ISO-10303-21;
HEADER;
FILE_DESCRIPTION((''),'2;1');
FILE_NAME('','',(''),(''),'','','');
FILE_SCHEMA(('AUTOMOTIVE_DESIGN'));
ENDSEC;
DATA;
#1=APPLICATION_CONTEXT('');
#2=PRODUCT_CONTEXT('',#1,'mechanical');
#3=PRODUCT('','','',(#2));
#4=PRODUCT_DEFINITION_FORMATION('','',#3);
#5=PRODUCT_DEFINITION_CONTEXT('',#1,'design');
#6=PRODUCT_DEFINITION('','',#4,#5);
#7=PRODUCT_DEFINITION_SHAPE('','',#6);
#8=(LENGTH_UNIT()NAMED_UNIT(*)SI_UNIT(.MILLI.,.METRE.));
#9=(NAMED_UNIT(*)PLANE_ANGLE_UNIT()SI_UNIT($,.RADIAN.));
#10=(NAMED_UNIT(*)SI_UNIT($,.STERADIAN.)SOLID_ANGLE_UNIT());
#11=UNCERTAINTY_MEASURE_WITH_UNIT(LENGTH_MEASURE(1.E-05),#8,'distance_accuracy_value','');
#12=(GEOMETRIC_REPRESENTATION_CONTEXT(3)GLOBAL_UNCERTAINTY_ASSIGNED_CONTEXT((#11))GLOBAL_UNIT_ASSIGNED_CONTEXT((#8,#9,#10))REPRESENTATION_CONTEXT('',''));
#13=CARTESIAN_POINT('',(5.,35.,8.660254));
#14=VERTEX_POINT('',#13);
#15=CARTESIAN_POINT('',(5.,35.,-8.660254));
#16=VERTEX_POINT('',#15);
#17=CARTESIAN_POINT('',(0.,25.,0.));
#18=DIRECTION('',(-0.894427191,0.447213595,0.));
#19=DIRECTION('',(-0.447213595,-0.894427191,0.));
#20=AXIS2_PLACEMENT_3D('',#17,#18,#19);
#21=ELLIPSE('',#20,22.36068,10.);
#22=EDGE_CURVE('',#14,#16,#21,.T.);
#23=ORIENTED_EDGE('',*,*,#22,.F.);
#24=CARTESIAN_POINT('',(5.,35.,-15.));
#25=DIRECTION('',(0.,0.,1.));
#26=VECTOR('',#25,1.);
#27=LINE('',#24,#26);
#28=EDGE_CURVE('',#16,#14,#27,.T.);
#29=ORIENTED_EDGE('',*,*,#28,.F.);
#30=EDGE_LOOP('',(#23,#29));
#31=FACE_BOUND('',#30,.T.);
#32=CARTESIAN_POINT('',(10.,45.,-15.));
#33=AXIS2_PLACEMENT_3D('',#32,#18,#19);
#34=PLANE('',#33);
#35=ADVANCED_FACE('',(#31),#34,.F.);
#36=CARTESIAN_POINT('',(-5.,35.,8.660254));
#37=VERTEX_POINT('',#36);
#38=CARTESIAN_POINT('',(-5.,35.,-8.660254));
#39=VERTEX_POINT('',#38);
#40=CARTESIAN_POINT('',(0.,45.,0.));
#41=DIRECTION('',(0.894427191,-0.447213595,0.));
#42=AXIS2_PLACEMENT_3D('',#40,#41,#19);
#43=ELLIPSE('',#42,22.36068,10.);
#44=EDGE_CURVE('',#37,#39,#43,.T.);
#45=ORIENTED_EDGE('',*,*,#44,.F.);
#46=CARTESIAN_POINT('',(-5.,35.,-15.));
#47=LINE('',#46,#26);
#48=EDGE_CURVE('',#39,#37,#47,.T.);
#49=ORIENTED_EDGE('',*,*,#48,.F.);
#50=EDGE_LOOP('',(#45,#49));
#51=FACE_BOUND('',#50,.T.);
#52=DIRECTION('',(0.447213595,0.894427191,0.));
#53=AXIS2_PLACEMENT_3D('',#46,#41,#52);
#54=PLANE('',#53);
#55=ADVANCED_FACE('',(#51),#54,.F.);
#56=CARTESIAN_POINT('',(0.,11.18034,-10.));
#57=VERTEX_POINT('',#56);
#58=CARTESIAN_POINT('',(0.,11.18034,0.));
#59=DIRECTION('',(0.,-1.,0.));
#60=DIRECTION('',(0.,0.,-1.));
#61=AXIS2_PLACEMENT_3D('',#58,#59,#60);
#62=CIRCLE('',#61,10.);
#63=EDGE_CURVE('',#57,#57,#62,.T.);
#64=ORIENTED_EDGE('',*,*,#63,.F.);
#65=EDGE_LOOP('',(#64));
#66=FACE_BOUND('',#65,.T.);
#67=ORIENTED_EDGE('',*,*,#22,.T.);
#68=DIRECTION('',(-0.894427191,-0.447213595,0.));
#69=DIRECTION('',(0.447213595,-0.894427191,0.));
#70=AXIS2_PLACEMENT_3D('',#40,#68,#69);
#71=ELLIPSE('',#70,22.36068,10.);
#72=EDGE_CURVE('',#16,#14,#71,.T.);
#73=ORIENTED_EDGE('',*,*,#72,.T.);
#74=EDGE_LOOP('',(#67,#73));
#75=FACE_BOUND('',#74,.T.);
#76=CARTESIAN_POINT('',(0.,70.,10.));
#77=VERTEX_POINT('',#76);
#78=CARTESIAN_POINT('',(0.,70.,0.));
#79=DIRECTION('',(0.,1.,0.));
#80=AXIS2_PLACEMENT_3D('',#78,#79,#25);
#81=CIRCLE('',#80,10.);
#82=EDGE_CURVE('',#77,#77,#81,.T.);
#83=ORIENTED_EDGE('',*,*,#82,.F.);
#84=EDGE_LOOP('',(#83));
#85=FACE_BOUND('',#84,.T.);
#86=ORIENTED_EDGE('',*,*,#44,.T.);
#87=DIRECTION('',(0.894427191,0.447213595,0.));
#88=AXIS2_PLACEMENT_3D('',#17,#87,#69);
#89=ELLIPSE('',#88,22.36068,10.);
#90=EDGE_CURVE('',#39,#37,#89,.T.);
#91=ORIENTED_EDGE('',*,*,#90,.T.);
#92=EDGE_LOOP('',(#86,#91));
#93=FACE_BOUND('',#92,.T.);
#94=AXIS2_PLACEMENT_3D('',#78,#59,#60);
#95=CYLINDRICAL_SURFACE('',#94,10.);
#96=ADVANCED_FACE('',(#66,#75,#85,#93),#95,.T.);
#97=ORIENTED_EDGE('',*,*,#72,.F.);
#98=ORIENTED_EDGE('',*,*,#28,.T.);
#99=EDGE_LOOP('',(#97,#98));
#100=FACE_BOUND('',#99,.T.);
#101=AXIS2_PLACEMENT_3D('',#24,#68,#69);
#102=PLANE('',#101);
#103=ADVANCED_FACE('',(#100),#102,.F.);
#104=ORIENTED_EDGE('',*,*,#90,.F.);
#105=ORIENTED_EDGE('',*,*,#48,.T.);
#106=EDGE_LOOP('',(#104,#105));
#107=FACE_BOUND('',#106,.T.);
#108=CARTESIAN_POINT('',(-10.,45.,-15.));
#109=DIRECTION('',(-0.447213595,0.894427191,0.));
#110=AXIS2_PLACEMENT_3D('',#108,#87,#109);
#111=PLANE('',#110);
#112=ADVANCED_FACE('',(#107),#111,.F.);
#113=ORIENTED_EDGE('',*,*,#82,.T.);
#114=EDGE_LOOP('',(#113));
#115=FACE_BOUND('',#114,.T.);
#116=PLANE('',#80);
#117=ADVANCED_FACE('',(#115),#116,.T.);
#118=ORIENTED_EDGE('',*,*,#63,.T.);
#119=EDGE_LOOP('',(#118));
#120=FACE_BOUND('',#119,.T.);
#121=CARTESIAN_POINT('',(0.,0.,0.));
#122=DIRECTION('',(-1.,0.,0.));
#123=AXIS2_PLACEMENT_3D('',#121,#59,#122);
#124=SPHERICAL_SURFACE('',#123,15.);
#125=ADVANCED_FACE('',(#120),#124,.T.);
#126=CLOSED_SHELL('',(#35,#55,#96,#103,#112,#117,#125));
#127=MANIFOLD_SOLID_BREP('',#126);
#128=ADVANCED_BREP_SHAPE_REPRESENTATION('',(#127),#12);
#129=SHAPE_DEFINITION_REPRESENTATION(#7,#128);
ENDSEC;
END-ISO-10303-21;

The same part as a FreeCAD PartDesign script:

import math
import FreeCAD as App
import Part
import Sketcher

V = App.Vector

doc = App.newDocument("Part")
body = doc.addObject("PartDesign::Body", "Body")

# Sketch on XY plane
sketch1 = body.newObject("Sketcher::SketchObject", "Sketch")
sketch1.AttachmentSupport = (doc.getObject("XY_Plane"), [""])
sketch1.MapMode = "FlatFace"
sketch1.addGeometry(Part.LineSegment(V(0, 15, 0), V(0, -15, 0)), False)
sketch1.addGeometry(Part.ArcOfCircle(Part.Circle(V(0, 0, 0), V(0, 0, 1), 15), math.radians(-90), math.radians(90)), False)
sketch1.addConstraint(Sketcher.Constraint("Coincident", 0, 1, 1, 2))
sketch1.addConstraint(Sketcher.Constraint("Coincident", 1, 1, 0, 2))
sketch1.addConstraint(Sketcher.Constraint("Vertical", 0))
sketch1.addConstraint(Sketcher.Constraint("Coincident", 1, 3, -1, 1))
sketch1.addConstraint(Sketcher.Constraint("PointOnObject", 0, 1, -2))
sketch1.addConstraint(Sketcher.Constraint("Radius", 1, 15.0))
revolution = body.newObject("PartDesign::Revolution", "Revolution")
revolution.Profile = sketch1
revolution.ReferenceAxis = (sketch1, ["V_Axis"])
revolution.Angle = 360

# Sketch on XZ plane
sketch2 = body.newObject("Sketcher::SketchObject", "Sketch001")
sketch2.AttachmentSupport = (doc.getObject("XZ_Plane"), [""])
sketch2.MapMode = "FlatFace"
sketch2.addGeometry(Part.Circle(V(0, 0, 0), V(0, 0, 1), 10), False)
sketch2.addConstraint(Sketcher.Constraint("Coincident", 0, 3, -1, 1))
sketch2.addConstraint(Sketcher.Constraint("Diameter", 0, 20.0))
pad1 = body.newObject("PartDesign::Pad", "Pad")
pad1.Profile = sketch2
pad1.Length = 70
pad1.Reversed = True

# Sketch on XY plane
sketch3 = body.newObject("Sketcher::SketchObject", "Sketch002")
sketch3.AttachmentSupport = (doc.getObject("XY_Plane"), [""])
sketch3.MapMode = "FlatFace"
sketch3.addGeometry(Part.LineSegment(V(10, 45, 0), V(5, 35, 0)), False)
sketch3.addGeometry(Part.LineSegment(V(5, 35, 0), V(10, 25, 0)), False)
sketch3.addGeometry(Part.LineSegment(V(10, 25, 0), V(10, 45, 0)), False)
sketch3.addGeometry(Part.LineSegment(V(-10, 45, 0), V(-10, 25, 0)), False)
sketch3.addGeometry(Part.LineSegment(V(-10, 25, 0), V(-5, 35, 0)), False)
sketch3.addGeometry(Part.LineSegment(V(-5, 35, 0), V(-10, 45, 0)), False)
sketch3.addConstraint(Sketcher.Constraint("Coincident", 0, 2, 1, 1))
sketch3.addConstraint(Sketcher.Constraint("Coincident", 1, 2, 2, 1))
sketch3.addConstraint(Sketcher.Constraint("Coincident", 2, 2, 0, 1))
sketch3.addConstraint(Sketcher.Constraint("Coincident", 3, 2, 4, 1))
sketch3.addConstraint(Sketcher.Constraint("Coincident", 4, 2, 5, 1))
sketch3.addConstraint(Sketcher.Constraint("Coincident", 5, 2, 3, 1))
sketch3.addConstraint(Sketcher.Constraint("Vertical", 2))
sketch3.addConstraint(Sketcher.Constraint("Vertical", 3))
sketch3.addConstraint(Sketcher.Constraint("Symmetric", 1, 2, 3, 2, -2))
sketch3.addConstraint(Sketcher.Constraint("Symmetric", 0, 2, 4, 2, -2))
sketch3.addConstraint(Sketcher.Constraint("Parallel", 0, 4))
sketch3.addConstraint(Sketcher.Constraint("Parallel", 1, 5))
sketch3.addConstraint(Sketcher.Constraint("DistanceY", 2, 1, 2, 2, 20.0))
sketch3.addConstraint(Sketcher.Constraint("DistanceX", -1, 1, 0, 2, 5.0))
sketch3.addConstraint(Sketcher.Constraint("DistanceY", -1, 1, 0, 2, 35.0))
sketch3.addConstraint(Sketcher.Constraint("DistanceX", -1, 1, 1, 2, 10.0))
pocket1 = body.newObject("PartDesign::Pocket", "Pocket")
pocket1.Profile = sketch3
pocket1.Type = "ThroughAll"
pocket1.Midplane = True

doc.recompute()
